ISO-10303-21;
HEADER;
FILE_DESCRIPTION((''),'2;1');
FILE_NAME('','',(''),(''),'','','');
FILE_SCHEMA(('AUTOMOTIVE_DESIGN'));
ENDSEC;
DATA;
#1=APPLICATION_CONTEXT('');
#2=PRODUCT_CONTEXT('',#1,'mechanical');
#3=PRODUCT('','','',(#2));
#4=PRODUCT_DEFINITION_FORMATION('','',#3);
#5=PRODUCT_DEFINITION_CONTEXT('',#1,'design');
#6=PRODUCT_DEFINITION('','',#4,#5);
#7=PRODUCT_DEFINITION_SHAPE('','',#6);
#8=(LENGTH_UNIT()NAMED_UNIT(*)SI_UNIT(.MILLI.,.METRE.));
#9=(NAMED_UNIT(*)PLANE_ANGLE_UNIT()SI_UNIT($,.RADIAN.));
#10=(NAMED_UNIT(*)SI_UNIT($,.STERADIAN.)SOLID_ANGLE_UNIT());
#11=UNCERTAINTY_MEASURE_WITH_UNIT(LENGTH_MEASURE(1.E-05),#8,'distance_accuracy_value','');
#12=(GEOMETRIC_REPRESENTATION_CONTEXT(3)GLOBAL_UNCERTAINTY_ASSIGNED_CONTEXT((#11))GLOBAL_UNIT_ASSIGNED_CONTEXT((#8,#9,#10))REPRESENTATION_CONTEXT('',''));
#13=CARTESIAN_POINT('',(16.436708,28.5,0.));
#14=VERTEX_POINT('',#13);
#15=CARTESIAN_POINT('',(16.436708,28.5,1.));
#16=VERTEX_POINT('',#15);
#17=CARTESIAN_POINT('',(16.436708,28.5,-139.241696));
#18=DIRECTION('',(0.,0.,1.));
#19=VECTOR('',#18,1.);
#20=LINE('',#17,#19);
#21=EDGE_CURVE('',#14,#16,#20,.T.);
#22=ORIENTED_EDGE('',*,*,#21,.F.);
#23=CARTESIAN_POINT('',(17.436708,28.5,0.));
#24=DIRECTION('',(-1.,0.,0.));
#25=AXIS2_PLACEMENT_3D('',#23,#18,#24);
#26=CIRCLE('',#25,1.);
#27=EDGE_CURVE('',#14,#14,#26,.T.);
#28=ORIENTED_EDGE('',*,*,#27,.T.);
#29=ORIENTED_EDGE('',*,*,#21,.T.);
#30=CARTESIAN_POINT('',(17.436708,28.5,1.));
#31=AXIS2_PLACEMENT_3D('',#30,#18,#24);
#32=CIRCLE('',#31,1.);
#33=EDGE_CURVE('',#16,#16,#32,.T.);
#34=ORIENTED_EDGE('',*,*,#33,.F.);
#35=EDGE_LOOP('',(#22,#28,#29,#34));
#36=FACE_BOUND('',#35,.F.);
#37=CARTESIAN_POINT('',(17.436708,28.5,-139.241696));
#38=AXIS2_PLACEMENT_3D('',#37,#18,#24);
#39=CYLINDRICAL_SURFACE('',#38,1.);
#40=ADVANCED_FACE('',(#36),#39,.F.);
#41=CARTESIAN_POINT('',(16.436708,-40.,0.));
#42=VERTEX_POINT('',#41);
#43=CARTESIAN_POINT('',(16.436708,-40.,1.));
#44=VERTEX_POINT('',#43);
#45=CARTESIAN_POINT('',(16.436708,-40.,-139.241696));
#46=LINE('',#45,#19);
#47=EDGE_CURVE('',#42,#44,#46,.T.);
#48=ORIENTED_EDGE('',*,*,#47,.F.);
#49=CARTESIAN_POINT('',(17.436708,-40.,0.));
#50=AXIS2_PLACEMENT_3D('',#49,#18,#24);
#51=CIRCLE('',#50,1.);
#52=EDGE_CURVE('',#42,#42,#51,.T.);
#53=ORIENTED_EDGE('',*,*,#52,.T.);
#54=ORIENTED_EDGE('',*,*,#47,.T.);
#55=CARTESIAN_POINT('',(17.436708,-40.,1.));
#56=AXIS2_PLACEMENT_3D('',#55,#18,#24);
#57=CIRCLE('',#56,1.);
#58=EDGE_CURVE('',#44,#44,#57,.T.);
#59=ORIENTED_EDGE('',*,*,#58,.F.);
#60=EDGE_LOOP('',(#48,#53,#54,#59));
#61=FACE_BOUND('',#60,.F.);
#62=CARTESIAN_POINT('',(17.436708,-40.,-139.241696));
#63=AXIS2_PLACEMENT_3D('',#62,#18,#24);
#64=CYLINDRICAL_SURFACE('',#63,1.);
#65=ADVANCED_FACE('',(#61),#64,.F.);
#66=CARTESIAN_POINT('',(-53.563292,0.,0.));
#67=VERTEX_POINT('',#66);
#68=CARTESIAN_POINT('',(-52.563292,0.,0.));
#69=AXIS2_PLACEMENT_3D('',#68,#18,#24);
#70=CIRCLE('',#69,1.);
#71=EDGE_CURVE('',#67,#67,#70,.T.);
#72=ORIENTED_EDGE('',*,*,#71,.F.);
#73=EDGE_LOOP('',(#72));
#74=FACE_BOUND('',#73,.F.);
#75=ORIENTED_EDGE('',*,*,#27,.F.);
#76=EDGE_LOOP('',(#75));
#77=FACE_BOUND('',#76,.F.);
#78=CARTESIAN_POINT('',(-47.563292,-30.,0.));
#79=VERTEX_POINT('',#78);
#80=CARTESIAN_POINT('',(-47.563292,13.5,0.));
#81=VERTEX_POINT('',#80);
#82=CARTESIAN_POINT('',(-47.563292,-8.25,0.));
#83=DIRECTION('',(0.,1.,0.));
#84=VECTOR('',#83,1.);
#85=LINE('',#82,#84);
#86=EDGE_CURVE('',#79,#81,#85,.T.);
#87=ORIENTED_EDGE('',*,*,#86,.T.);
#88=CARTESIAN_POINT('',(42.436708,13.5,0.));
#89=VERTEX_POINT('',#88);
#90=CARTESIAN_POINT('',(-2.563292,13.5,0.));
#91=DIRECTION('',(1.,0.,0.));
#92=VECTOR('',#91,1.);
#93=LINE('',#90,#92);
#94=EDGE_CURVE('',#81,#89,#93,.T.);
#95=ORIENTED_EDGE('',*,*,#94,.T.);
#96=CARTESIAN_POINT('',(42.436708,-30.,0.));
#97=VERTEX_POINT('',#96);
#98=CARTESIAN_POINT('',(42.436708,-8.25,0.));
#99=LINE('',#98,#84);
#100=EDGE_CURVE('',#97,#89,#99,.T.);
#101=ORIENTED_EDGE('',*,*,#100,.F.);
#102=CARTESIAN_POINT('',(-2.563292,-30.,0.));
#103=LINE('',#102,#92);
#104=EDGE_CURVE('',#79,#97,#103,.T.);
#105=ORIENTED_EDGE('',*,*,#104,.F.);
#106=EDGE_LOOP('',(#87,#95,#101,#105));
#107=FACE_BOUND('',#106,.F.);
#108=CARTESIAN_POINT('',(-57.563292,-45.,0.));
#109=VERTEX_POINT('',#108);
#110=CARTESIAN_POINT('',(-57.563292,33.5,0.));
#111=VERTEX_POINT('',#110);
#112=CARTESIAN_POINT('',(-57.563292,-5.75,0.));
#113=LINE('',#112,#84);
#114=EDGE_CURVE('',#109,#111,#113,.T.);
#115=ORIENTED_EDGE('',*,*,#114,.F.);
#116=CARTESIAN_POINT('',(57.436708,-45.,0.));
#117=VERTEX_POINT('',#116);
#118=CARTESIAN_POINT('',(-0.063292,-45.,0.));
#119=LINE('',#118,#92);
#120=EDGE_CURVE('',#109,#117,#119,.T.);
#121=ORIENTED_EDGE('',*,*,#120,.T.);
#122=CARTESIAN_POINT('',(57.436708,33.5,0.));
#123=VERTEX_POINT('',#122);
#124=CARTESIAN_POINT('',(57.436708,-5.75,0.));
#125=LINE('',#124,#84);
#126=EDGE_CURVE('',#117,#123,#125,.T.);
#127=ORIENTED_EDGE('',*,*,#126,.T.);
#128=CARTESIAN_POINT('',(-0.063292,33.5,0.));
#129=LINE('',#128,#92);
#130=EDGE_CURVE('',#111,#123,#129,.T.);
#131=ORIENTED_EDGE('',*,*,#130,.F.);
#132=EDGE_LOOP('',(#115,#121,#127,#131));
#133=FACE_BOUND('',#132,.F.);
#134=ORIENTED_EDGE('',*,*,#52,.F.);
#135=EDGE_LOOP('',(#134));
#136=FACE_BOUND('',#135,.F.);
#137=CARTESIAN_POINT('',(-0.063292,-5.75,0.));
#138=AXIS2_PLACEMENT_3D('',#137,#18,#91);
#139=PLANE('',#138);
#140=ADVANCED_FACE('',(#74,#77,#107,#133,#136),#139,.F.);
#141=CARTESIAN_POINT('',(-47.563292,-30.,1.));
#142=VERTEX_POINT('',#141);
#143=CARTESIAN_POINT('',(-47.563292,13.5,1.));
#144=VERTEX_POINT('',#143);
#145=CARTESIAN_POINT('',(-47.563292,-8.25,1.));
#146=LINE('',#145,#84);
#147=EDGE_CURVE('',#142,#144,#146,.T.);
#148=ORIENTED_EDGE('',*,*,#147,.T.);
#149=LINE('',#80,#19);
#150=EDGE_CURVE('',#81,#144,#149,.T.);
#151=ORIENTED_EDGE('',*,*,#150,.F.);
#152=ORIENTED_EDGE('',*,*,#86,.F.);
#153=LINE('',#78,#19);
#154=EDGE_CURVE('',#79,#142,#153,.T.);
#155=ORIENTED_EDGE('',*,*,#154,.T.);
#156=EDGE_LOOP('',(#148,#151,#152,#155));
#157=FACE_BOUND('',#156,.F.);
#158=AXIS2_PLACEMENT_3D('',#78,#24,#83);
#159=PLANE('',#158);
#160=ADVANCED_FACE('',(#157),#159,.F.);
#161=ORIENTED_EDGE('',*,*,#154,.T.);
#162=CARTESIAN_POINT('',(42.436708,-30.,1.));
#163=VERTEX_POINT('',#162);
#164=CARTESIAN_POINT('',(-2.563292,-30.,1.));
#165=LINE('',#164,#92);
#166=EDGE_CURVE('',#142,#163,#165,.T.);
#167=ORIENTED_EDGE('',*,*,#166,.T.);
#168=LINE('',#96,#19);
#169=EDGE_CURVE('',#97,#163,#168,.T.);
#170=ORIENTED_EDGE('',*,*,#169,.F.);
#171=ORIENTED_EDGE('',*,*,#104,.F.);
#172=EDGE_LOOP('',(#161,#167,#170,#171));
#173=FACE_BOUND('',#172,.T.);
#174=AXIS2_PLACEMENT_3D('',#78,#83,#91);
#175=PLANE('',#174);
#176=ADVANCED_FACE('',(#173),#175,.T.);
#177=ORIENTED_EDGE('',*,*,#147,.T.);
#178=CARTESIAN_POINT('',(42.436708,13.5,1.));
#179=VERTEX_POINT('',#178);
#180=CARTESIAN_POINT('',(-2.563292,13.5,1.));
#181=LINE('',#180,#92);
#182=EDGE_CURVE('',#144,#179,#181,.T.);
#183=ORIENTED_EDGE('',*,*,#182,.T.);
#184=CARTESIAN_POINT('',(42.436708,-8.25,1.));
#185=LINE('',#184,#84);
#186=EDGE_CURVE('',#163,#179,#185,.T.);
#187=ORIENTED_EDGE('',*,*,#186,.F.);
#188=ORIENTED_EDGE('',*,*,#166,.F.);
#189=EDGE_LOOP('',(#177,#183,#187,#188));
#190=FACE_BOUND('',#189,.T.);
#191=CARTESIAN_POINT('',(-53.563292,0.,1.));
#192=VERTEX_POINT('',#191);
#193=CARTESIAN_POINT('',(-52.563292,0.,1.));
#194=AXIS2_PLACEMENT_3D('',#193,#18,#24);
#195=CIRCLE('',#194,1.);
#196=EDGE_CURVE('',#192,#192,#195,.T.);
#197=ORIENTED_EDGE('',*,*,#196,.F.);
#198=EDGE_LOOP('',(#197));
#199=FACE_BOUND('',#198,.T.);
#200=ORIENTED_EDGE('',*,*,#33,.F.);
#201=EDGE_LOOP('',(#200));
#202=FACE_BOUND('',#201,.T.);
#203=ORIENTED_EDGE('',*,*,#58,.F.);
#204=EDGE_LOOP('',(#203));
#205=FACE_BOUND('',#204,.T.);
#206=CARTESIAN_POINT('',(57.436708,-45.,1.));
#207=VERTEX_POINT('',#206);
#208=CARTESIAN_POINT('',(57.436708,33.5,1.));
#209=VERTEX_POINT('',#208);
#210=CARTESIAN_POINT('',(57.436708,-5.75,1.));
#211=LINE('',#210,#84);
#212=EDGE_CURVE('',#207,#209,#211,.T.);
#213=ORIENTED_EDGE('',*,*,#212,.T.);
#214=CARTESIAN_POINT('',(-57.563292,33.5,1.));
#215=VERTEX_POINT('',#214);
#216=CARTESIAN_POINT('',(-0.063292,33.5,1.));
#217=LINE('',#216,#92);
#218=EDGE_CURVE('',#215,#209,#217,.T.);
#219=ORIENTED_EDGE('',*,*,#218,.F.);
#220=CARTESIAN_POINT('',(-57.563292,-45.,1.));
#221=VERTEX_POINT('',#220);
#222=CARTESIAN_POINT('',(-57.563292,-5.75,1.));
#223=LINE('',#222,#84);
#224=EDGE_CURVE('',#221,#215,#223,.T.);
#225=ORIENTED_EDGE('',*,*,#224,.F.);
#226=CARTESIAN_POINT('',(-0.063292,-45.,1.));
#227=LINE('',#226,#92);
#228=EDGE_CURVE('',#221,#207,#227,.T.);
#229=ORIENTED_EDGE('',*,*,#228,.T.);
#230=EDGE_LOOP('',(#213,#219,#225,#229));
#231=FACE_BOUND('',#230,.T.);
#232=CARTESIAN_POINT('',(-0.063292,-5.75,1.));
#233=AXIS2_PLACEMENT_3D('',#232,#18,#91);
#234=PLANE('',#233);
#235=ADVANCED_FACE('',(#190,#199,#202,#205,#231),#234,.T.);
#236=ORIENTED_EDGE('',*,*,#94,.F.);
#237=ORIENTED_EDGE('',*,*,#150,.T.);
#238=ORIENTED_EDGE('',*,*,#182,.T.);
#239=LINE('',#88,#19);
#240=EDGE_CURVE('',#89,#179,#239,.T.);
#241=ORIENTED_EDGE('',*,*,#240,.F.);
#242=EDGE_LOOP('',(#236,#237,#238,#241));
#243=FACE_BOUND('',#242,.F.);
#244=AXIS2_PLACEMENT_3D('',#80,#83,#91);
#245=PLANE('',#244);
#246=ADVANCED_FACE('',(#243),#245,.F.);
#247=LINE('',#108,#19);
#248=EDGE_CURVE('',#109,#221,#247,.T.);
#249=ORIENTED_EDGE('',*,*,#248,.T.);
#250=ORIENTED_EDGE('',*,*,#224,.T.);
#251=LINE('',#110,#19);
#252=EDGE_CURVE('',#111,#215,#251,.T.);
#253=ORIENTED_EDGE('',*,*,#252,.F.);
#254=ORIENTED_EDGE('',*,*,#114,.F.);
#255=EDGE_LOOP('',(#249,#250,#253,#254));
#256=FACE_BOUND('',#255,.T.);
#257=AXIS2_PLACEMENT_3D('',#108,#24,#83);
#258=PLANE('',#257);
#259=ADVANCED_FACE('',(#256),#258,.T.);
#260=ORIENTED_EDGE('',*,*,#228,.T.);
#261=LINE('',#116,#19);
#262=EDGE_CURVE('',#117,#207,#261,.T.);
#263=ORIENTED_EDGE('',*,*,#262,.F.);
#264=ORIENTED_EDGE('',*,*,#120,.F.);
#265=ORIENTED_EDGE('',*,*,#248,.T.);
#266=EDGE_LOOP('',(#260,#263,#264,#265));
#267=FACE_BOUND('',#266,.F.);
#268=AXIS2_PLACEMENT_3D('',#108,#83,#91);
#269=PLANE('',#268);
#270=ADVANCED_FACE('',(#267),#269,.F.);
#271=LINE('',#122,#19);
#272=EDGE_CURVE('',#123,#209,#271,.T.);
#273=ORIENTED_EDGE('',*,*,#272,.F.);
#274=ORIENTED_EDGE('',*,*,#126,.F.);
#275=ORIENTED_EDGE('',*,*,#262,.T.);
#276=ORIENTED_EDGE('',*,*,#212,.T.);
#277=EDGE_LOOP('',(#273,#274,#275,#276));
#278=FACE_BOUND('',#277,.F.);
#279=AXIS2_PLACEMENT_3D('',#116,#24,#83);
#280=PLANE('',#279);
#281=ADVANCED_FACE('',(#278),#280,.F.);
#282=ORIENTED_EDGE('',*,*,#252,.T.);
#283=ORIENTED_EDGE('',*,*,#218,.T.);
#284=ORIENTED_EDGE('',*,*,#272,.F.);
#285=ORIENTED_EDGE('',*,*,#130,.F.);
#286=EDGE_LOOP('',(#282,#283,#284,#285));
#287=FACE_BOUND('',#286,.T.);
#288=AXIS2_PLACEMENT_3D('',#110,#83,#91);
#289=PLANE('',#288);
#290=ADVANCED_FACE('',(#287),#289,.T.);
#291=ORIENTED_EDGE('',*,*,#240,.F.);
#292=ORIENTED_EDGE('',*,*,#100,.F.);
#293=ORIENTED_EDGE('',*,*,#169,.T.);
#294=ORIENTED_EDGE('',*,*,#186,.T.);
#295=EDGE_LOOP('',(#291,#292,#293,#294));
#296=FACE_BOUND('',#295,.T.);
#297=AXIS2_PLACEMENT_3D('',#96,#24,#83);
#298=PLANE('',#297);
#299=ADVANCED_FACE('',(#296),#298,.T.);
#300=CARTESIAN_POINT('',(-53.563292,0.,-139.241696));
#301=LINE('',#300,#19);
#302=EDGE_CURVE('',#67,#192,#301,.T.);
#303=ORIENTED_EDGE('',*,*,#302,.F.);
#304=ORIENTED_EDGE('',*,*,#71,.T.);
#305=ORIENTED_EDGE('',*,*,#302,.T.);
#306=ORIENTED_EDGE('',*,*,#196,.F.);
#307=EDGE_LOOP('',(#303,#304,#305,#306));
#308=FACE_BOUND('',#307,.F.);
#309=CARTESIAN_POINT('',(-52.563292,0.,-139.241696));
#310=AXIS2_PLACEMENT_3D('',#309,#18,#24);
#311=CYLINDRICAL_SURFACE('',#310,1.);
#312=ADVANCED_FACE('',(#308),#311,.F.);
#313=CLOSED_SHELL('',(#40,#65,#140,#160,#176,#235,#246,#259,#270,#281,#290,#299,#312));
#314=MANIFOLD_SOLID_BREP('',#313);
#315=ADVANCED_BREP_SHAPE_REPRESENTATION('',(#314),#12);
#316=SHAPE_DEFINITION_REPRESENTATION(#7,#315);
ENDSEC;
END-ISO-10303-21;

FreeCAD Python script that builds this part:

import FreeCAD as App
import Part
import Sketcher
from FreeCAD import Vector
Q = App.Units.Quantity


def add_polygon(sketch, points):
    """Adds a closed chain of lines whose ends are joined by coincident constraints."""
    first, n = sketch.GeometryCount, len(points)
    for a, b in zip(points, points[1:] + points[:1]):
        sketch.addGeometry(Part.LineSegment(App.Vector(*a, 0), App.Vector(*b, 0)), False)
    for i in range(n):
        sketch.addConstraint(Sketcher.Constraint("Coincident", first + i, 2, first + (i + 1) % n, 1))

doc = App.newDocument("Part")
body = doc.addObject("PartDesign::Body", "Body")

sketch1 = body.newObject("Sketcher::SketchObject", "Sketch")
sketch1.AttachmentSupport = (doc.getObject("XY_Plane"), [""])
sketch1.MapMode = "FlatFace"
add_polygon(sketch1, [(-58, 34), (-58, -45), (57, -45), (57, 34)])
add_polygon(sketch1, [(42, -30), (-48, -30), (-48, 14), (42, 14)])
sketch1.addConstraint(Sketcher.Constraint("Vertical", 0))
sketch1.addConstraint(Sketcher.Constraint("Horizontal", 1))
sketch1.addConstraint(Sketcher.Constraint("Vertical", 2))
sketch1.addConstraint(Sketcher.Constraint("Horizontal", 3))
sketch1.addConstraint(Sketcher.Constraint("Horizontal", 4))
sketch1.addConstraint(Sketcher.Constraint("Vertical", 5))
sketch1.addConstraint(Sketcher.Constraint("Horizontal", 6))
sketch1.addConstraint(Sketcher.Constraint("Vertical", 7))
sketch1.addConstraint(Sketcher.Constraint("DistanceX", 1, 1, 1, 2, Q("115 mm")))
sketch1.addConstraint(Sketcher.Constraint("DistanceX", 4, 2, 4, 1, Q("90 mm")))
sketch1.addConstraint(Sketcher.Constraint("DistanceY", 0, 2, 0, 1, Q("78.5 mm")))
sketch1.addConstraint(Sketcher.Constraint("DistanceY", 5, 1, 5, 2, Q("43.5 mm")))
sketch1.addConstraint(Sketcher.Constraint("DistanceY", 0, 2, -1, 1, Q("45 mm")))
sketch1.addConstraint(Sketcher.Constraint("DistanceY", 4, 2, -1, 1, Q("30 mm")))
sketch1.addConstraint(Sketcher.Constraint("DistanceX", 0, 2, 4, 2, Q("10 mm")))
sketch1.addConstraint(Sketcher.Constraint("DistanceX", 0, 2, -1, 1, Q("57.563292 mm")))
pad1 = body.newObject("PartDesign::Pad", "Pad")
pad1.Profile = sketch1
pad1.Length = 1

sketch2 = body.newObject("Sketcher::SketchObject", "Sketch001")
sketch2.AttachmentSupport = (doc.getObject("XY_Plane"), [""])
sketch2.MapMode = "FlatFace"
sketch2.addGeometry(Part.Circle(Vector(-52.6, 0, 0), Vector(0, 0, 1), 1), False)
sketch2.addGeometry(Part.Circle(Vector(17.4, 28.5, 0), Vector(0, 0, 1), 1), False)
sketch2.addGeometry(Part.Circle(Vector(17.4, -40, 0), Vector(0, 0, 1), 1), False)
sketch2.addConstraint(Sketcher.Constraint("Equal", 0, 1))
sketch2.addConstraint(Sketcher.Constraint("Equal", 1, 2))
sketch2.addConstraint(Sketcher.Constraint("PointOnObject", 0, 3, -1))
sketch2.addConstraint(Sketcher.Constraint("Vertical", 1, 3, 2, 3))
sketch2.addConstraint(Sketcher.Constraint("Diameter", 0, Q("2 mm")))
sketch2.addConstraint(Sketcher.Constraint("DistanceY", 2, 3, -1, 1, Q("40 mm")))
sketch2.addConstraint(Sketcher.Constraint("DistanceX", 0, 3, 1, 3, Q("70 mm")))
sketch2.addConstraint(Sketcher.Constraint("DistanceY", -1, 1, 1, 3, Q("28.5 mm")))
sketch2.addConstraint(Sketcher.Constraint("DistanceX", 0, 3, -1, 1, Q("52.563292 mm")))
doc.recompute()
hole = body.newObject("PartDesign::Hole", "Hole")
hole.Profile = sketch2
hole.ThreadType = "None"
hole.Diameter = 2
hole.DepthType = "ThroughAll"
hole.Reversed = True

doc.recompute()
